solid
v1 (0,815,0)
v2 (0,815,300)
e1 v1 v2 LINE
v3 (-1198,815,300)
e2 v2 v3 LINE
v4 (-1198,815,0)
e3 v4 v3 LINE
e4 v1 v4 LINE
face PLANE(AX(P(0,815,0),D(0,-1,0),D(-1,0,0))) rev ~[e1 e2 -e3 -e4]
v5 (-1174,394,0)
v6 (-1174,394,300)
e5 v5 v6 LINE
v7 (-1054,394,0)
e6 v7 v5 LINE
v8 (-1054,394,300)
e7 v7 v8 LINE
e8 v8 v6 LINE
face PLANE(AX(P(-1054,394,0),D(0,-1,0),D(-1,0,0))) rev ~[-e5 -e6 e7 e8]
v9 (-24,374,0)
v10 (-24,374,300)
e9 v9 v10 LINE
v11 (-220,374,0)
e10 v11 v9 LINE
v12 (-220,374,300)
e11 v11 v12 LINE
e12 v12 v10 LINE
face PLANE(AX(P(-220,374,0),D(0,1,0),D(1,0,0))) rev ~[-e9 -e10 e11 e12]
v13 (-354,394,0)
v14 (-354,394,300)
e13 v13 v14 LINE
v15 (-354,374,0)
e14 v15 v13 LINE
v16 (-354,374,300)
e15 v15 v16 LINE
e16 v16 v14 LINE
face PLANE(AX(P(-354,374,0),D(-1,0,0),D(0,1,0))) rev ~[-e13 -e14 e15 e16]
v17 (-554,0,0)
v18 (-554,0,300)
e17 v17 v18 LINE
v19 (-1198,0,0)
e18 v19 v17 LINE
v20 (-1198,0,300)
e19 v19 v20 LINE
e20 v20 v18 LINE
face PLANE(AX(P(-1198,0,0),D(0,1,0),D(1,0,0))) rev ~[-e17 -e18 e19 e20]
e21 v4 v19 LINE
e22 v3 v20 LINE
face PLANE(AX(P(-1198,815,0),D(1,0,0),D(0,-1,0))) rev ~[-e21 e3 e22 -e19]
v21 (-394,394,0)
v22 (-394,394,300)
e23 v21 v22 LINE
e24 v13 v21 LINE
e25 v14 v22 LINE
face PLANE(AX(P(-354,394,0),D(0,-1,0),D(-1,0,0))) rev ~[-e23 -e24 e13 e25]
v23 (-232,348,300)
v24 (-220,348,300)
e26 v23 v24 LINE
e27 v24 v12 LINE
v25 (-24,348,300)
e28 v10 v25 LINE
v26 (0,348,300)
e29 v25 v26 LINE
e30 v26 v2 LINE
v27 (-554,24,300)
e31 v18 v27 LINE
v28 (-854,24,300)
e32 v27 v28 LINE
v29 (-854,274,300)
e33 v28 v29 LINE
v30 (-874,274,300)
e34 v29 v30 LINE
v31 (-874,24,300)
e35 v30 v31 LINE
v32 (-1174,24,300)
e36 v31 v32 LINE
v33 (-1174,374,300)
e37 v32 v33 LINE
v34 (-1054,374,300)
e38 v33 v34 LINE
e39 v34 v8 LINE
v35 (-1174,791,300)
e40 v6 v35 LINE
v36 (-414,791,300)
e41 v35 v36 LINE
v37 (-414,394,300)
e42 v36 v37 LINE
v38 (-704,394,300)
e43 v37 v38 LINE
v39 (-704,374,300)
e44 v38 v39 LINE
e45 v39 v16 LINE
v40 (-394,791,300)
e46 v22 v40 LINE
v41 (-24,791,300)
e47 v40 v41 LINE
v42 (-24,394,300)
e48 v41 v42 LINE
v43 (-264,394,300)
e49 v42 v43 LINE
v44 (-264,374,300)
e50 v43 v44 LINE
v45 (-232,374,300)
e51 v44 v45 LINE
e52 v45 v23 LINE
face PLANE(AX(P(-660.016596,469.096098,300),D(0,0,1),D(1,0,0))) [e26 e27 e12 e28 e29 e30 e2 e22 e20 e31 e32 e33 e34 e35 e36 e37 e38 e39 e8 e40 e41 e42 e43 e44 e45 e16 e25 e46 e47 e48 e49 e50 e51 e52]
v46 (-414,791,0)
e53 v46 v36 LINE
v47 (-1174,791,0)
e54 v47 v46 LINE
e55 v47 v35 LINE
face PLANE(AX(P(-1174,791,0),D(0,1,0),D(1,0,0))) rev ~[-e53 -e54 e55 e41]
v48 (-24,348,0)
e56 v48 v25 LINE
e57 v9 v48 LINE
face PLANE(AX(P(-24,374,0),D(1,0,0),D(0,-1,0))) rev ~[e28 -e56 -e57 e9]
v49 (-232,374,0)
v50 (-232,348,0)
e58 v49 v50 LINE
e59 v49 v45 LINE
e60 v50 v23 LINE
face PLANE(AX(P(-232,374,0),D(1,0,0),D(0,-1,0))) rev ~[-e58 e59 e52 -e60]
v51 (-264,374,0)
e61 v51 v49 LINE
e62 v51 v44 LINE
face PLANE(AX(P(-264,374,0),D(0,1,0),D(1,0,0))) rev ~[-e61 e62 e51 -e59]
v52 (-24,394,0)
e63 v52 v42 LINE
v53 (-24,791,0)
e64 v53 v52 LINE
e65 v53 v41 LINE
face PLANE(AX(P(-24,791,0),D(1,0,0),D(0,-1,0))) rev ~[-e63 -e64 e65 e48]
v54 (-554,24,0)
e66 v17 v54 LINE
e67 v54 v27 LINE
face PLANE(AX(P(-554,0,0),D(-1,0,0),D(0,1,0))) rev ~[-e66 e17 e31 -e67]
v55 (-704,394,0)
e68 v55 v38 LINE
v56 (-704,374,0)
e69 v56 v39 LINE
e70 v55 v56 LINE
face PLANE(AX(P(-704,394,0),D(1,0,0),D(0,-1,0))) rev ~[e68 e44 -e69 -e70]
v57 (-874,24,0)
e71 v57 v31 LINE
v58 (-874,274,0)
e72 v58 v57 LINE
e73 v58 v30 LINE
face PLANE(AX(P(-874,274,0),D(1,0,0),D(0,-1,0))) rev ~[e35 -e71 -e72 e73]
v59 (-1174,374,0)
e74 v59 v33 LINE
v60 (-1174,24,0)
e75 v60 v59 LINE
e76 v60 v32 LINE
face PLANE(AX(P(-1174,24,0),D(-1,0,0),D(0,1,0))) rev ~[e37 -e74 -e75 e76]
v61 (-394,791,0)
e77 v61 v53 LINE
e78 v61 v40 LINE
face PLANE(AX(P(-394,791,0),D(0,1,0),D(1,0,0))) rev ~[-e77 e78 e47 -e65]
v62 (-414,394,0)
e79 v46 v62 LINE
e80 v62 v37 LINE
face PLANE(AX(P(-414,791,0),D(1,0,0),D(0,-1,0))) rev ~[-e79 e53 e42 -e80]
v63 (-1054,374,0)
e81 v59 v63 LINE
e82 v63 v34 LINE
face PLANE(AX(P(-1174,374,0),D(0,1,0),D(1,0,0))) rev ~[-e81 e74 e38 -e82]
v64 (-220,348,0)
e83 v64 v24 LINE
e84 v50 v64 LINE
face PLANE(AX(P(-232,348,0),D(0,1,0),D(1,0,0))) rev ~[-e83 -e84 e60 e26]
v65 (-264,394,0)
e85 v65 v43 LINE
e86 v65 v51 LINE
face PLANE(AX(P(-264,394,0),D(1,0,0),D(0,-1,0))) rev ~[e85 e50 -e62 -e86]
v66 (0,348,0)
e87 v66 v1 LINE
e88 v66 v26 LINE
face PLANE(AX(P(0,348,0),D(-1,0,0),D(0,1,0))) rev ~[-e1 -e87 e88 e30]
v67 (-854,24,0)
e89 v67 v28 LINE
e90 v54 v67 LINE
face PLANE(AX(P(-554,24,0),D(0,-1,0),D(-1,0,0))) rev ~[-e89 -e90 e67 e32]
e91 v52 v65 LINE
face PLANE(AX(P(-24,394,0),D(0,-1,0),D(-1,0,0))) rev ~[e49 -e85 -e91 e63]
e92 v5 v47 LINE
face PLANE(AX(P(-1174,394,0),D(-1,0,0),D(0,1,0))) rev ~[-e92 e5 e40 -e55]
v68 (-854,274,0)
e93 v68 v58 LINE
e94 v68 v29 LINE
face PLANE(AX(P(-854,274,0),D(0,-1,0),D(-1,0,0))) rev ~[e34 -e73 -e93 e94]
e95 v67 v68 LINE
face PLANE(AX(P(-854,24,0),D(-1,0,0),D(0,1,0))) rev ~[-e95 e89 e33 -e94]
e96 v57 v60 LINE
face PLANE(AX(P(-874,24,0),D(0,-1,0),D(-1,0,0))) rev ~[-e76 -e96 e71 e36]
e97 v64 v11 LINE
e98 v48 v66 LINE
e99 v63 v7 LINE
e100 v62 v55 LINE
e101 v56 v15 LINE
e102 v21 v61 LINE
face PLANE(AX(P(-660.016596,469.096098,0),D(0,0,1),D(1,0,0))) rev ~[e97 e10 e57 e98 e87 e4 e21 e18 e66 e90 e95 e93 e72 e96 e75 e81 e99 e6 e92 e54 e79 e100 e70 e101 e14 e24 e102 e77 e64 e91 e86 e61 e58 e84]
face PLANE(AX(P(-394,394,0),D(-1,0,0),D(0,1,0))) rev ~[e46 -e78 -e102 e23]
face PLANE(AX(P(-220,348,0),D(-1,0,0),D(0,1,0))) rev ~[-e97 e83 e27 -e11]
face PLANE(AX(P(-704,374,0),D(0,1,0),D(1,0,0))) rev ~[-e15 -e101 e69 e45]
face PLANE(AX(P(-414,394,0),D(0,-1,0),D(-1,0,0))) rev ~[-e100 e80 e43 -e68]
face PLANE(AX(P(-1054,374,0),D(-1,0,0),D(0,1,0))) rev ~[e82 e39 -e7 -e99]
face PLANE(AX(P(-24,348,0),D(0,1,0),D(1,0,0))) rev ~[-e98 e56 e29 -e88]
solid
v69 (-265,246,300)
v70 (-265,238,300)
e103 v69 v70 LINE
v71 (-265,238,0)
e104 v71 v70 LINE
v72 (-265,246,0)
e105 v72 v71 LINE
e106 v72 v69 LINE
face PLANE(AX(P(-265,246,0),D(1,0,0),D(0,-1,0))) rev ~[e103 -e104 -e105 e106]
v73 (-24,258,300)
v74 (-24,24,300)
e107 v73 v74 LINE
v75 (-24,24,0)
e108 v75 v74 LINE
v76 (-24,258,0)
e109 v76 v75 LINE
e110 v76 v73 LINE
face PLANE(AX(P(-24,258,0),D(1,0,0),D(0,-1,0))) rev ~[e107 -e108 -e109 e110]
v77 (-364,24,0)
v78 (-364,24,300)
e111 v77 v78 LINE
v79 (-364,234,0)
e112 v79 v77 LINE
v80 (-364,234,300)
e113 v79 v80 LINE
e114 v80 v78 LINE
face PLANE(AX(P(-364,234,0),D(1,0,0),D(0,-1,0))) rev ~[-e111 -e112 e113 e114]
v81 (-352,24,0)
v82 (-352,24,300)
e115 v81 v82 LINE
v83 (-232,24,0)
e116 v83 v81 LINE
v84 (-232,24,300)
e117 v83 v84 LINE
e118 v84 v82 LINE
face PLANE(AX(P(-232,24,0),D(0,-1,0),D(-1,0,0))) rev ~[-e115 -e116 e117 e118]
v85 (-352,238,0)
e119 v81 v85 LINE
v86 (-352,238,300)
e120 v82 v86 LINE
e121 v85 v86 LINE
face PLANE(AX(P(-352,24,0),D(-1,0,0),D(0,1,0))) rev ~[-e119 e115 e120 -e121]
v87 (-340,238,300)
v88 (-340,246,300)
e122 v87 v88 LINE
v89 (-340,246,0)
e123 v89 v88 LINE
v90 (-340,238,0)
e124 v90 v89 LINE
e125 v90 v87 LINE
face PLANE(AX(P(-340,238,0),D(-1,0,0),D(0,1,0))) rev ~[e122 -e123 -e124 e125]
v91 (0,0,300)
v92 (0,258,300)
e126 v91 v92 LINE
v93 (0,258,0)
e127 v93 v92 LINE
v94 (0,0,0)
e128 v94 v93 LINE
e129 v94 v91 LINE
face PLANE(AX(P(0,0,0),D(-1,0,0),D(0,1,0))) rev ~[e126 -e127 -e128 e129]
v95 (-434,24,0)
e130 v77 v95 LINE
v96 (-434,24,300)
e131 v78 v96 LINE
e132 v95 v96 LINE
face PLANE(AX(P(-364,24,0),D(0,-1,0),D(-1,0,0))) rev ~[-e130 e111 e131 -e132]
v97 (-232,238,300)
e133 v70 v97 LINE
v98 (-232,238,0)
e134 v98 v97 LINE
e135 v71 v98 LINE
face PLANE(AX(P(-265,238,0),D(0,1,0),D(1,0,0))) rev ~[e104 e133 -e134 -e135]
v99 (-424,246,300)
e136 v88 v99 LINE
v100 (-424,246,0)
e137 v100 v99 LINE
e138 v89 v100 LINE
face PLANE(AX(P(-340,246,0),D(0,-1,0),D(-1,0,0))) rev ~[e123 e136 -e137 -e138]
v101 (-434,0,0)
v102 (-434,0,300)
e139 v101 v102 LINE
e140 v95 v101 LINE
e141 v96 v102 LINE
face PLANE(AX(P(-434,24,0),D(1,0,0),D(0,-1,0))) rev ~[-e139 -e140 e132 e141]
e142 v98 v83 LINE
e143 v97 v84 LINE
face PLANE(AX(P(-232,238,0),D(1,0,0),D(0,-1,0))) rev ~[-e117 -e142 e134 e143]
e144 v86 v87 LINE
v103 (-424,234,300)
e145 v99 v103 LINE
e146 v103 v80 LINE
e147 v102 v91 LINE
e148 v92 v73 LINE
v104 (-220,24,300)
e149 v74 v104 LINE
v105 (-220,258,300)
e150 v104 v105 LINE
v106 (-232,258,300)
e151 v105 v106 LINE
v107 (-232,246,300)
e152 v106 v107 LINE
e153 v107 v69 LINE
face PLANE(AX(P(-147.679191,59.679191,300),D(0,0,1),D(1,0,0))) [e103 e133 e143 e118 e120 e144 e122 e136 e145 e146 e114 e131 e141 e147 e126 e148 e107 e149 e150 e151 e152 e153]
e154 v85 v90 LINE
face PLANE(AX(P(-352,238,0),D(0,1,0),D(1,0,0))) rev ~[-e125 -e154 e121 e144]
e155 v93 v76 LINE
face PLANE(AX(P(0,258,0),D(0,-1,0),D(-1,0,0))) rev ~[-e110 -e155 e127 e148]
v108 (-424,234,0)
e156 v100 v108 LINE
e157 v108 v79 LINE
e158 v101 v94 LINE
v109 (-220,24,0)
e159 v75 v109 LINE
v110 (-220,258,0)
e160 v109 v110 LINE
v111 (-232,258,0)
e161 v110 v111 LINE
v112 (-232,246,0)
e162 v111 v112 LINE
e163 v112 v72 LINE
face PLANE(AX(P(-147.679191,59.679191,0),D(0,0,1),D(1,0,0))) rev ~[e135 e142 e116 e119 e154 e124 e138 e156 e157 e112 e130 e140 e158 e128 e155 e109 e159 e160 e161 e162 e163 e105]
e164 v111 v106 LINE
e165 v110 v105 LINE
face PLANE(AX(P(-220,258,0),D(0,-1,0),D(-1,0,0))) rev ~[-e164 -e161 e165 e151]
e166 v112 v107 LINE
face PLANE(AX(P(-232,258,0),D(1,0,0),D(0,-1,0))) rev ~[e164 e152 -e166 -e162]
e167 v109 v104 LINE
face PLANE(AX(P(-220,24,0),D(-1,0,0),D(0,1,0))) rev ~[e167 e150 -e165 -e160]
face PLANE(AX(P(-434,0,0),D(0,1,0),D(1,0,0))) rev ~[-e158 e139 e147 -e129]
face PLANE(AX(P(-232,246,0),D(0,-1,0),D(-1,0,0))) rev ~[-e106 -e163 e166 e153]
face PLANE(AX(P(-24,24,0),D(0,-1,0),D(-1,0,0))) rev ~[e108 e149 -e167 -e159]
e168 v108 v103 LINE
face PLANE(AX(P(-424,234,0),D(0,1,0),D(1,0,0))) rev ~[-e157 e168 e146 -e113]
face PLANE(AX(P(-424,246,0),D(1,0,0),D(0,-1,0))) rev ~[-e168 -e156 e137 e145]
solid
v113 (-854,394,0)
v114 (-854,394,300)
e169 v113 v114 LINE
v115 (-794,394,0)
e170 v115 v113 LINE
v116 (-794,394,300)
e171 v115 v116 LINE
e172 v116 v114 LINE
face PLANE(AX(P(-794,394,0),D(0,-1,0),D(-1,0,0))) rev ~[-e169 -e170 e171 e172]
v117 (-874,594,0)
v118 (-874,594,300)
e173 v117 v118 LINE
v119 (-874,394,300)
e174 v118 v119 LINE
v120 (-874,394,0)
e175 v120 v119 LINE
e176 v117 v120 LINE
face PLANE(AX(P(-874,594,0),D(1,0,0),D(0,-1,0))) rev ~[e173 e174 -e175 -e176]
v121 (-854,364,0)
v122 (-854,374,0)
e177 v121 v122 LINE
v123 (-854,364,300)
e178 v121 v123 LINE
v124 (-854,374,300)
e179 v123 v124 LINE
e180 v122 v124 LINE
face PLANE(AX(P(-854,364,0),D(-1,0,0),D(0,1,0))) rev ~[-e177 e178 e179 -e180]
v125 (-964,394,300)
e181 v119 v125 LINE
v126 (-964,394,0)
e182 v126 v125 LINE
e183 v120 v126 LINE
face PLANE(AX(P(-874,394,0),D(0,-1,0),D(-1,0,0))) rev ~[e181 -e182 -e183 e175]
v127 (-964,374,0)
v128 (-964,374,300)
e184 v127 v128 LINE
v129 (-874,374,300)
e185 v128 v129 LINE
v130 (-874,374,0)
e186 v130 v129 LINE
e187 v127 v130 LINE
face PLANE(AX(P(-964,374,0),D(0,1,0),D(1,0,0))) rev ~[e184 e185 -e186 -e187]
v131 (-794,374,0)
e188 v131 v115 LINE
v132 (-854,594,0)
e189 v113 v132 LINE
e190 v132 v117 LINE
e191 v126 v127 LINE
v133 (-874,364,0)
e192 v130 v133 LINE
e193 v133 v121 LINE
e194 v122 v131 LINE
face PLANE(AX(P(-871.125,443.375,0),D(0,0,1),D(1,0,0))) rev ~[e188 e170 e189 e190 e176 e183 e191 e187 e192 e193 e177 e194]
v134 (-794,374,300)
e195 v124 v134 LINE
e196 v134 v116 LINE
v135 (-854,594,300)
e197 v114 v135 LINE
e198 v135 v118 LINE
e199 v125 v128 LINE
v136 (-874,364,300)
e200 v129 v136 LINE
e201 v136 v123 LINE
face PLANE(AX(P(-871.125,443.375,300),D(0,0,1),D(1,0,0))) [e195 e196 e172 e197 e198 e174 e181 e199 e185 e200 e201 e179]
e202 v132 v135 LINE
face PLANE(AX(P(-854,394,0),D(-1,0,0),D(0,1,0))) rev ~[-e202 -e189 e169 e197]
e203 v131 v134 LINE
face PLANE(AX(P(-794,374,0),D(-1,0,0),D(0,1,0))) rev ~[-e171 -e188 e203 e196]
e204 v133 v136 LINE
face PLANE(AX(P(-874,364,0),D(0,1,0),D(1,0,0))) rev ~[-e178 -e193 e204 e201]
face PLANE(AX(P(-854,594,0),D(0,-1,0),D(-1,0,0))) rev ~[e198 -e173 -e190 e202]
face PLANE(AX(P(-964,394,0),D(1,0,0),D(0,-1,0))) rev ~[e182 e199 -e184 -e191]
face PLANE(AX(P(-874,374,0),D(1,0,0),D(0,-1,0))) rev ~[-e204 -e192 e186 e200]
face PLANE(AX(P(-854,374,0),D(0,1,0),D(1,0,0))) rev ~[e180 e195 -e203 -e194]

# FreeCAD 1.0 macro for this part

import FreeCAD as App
import Part
import Sketcher
from FreeCAD import Vector


def add_polygon(sketch, points):
    """Adds a closed chain of lines whose ends are joined by coincident constraints."""
    first, n = sketch.GeometryCount, len(points)
    for a, b in zip(points, points[1:] + points[:1]):
        sketch.addGeometry(Part.LineSegment(App.Vector(*a, 0), App.Vector(*b, 0)), False)
    for i in range(n):
        sketch.addConstraint(Sketcher.Constraint("Coincident", first + i, 2, first + (i + 1) % n, 1))

doc = App.newDocument("Part")
body = doc.addObject("PartDesign::Body", "Body")
body.AllowCompound = True

# Sketch on XY plane
sketch1 = body.newObject("Sketcher::SketchObject", "Sketch")
sketch1.AttachmentSupport = (doc.getObject("XY_Plane"), [""])
sketch1.MapMode = "FlatFace"
add_polygon(sketch1, [(-434, 0), (0, 0), (0, 258), (-24, 258), (-24, 24), (-220, 24), (-220, 258), (-232, 258), (-232, 246), (-265, 246), (-265, 238), (-232, 238), (-232, 24), (-352, 24), (-352, 238), (-340, 238), (-340, 246), (-424, 246), (-424, 234), (-364, 234), (-364, 24), (-434, 24)])  # lines 0-21
add_polygon(sketch1, [(0, 348), (0, 815), (-1198, 815), (-1198, 0), (-554, 0), (-554, 24), (-854, 24), (-854, 274), (-874, 274), (-874, 24), (-1174, 24), (-1174, 374), (-1054, 374), (-1054, 394), (-1174, 394), (-1174, 791), (-414, 791), (-414, 394), (-704, 394), (-704, 374), (-354, 374), (-354, 394), (-394, 394), (-394, 791), (-24, 791), (-24, 394), (-264, 394), (-264, 374), (-232, 374), (-232, 348), (-220, 348), (-220, 374), (-24, 374), (-24, 348)])  # lines 22-55
add_polygon(sketch1, [(-874, 394), (-964, 394), (-964, 374), (-874, 374), (-874, 364), (-854, 364), (-854, 374), (-794, 374), (-794, 394), (-854, 394), (-854, 594), (-874, 594)])  # lines 56-67
sketch1.addConstraint([
    Sketcher.Constraint("Horizontal", 0),
    Sketcher.Constraint("Vertical", 1),
    Sketcher.Constraint("Horizontal", 2),
    Sketcher.Constraint("Vertical", 3),
    Sketcher.Constraint("Horizontal", 4),
    Sketcher.Constraint("Vertical", 5),
    Sketcher.Constraint("Horizontal", 6),
    Sketcher.Constraint("Vertical", 7),
    Sketcher.Constraint("Horizontal", 8),
    Sketcher.Constraint("Vertical", 9),
    Sketcher.Constraint("Horizontal", 10),
    Sketcher.Constraint("Vertical", 11),
    Sketcher.Constraint("Horizontal", 12),
    Sketcher.Constraint("Vertical", 13),
    Sketcher.Constraint("Horizontal", 14),
    Sketcher.Constraint("Vertical", 15),
    Sketcher.Constraint("Horizontal", 16),
    Sketcher.Constraint("Vertical", 17),
    Sketcher.Constraint("Horizontal", 18),
    Sketcher.Constraint("Vertical", 19),
    Sketcher.Constraint("Horizontal", 20),
    Sketcher.Constraint("Vertical", 21),
    Sketcher.Constraint("Vertical", 22),
    Sketcher.Constraint("Horizontal", 23),
    Sketcher.Constraint("Vertical", 24),
    Sketcher.Constraint("Horizontal", 25),
    Sketcher.Constraint("Vertical", 26),
    Sketcher.Constraint("Horizontal", 27),
    Sketcher.Constraint("Vertical", 28),
    Sketcher.Constraint("Horizontal", 29),
    Sketcher.Constraint("Vertical", 30),
    Sketcher.Constraint("Horizontal", 31),
    Sketcher.Constraint("Vertical", 32),
    Sketcher.Constraint("Horizontal", 33),
    Sketcher.Constraint("Vertical", 34),
    Sketcher.Constraint("Horizontal", 35),
    Sketcher.Constraint("Vertical", 36),
    Sketcher.Constraint("Horizontal", 37),
    Sketcher.Constraint("Vertical", 38),
    Sketcher.Constraint("Horizontal", 39),
    Sketcher.Constraint("Vertical", 40),
    Sketcher.Constraint("Horizontal", 41),
    Sketcher.Constraint("Vertical", 42),
    Sketcher.Constraint("Horizontal", 43),
    Sketcher.Constraint("Vertical", 44),
    Sketcher.Constraint("Horizontal", 45),
    Sketcher.Constraint("Vertical", 46),
    Sketcher.Constraint("Horizontal", 47),
    Sketcher.Constraint("Vertical", 48),
    Sketcher.Constraint("Horizontal", 49),
    Sketcher.Constraint("Vertical", 50),
    Sketcher.Constraint("Horizontal", 51),
    Sketcher.Constraint("Vertical", 52),
    Sketcher.Constraint("Horizontal", 53),
    Sketcher.Constraint("Vertical", 54),
    Sketcher.Constraint("Horizontal", 55),
    Sketcher.Constraint("Horizontal", 56),
    Sketcher.Constraint("Vertical", 57),
    Sketcher.Constraint("Horizontal", 58),
    Sketcher.Constraint("Vertical", 59),
    Sketcher.Constraint("Horizontal", 60),
    Sketcher.Constraint("Vertical", 61),
    Sketcher.Constraint("Horizontal", 62),
    Sketcher.Constraint("Vertical", 63),
    Sketcher.Constraint("Horizontal", 64),
    Sketcher.Constraint("Vertical", 65),
    Sketcher.Constraint("Horizontal", 66),
    Sketcher.Constraint("Vertical", 67),
    Sketcher.Constraint("Coincident", 0, 2, -1, 1),
    Sketcher.Constraint("PointOnObject", 22, 2, -2),
    Sketcher.Constraint("PointOnObject", 24, 2, -1),
    Sketcher.Constraint("Horizontal", 2, 2, 5, 2),
    Sketcher.Constraint("Horizontal", 4, 2, 11, 2),
    Sketcher.Constraint("Horizontal", 10, 2, 13, 2),
    Sketcher.Constraint("Horizontal", 8, 2, 15, 2),
    Sketcher.Constraint("Horizontal", 12, 2, 19, 2),
    Sketcher.Constraint("Horizontal", 20, 2, 26, 2),
    Sketcher.Constraint("Horizontal", 27, 2, 30, 2),
    Sketcher.Constraint("Horizontal", 35, 2, 38, 2),
    Sketcher.Constraint("Horizontal", 33, 2, 40, 2),
    Sketcher.Constraint("Horizontal", 39, 2, 42, 2),
    Sketcher.Constraint("Horizontal", 37, 2, 44, 2),
    Sketcher.Constraint("Horizontal", 43, 2, 46, 2),
    Sketcher.Constraint("Horizontal", 41, 2, 48, 2),
    Sketcher.Constraint("Horizontal", 49, 2, 52, 2),
    Sketcher.Constraint("Horizontal", 51, 2, 54, 2),
    Sketcher.Constraint("Horizontal", 47, 2, 56, 2),
    Sketcher.Constraint("Horizontal", 53, 2, 57, 2),
    Sketcher.Constraint("Horizontal", 58, 2, 61, 2),
    Sketcher.Constraint("Horizontal", 56, 2, 63, 2),
    Sketcher.Constraint("Vertical", 7, 2, 10, 2),
    Sketcher.Constraint("Vertical", 32, 2, 35, 2),
    Sketcher.Constraint("Vertical", 3, 2, 45, 2),
    Sketcher.Constraint("Vertical", 11, 2, 49, 2),
    Sketcher.Constraint("Vertical", 5, 2, 51, 2),
    Sketcher.Constraint("Vertical", 46, 2, 53, 2),
    Sketcher.Constraint("Vertical", 30, 2, 58, 2),
    Sketcher.Constraint("Vertical", 28, 2, 60, 2),
    Sketcher.Constraint("Vertical", 61, 2, 64, 2),
    Sketcher.Constraint("Vertical", 59, 2, 66, 2),
    Sketcher.Constraint("Equal", 6, 14),
    Sketcher.Constraint("Equal", 27, 31),
    Sketcher.Constraint("Equal", 12, 33),
    Sketcher.Constraint("Equal", 18, 62),
    Sketcher.Constraint("Equal", 51, 7),
    Sketcher.Constraint("Equal", 7, 17),
    Sketcher.Constraint("Equal", 55, 21),
    Sketcher.Constraint("Equal", 41, 32),
    Sketcher.Constraint("Equal", 66, 34),
    Sketcher.Constraint("DistanceX", 0, 1, 0, 2, 434.0),
    Sketcher.Constraint("DistanceX", 2, 2, 2, 1, 24.0),
    Sketcher.Constraint("DistanceX", 4, 2, 4, 1, 196.0),
    Sketcher.Constraint("DistanceX", 6, 2, 6, 1, 12.0),
    Sketcher.Constraint("DistanceX", 8, 2, 8, 1, 33.0),
    Sketcher.Constraint("DistanceX", 12, 2, 12, 1, 120.0),
    Sketcher.Constraint("DistanceX", 16, 2, 16, 1, 84.0),
    Sketcher.Constraint("DistanceX", 18, 1, 18, 2, 60.0),
    Sketcher.Constraint("DistanceX", 23, 2, 23, 1, 1198.0),
    Sketcher.Constraint("DistanceX", 25, 1, 25, 2, 644.0),
    Sketcher.Constraint("DistanceX", 27, 2, 27, 1, 300.0),
    Sketcher.Constraint("DistanceX", 29, 2, 29, 1, 20.0),
    Sketcher.Constraint("DistanceX", 37, 1, 37, 2, 760.0),
    Sketcher.Constraint("DistanceX", 39, 2, 39, 1, 290.0),
    Sketcher.Constraint("DistanceX", 41, 1, 41, 2, 350.0),
    Sketcher.Constraint("DistanceX", 43, 2, 43, 1, 40.0),
    Sketcher.Constraint("DistanceX", 47, 2, 47, 1, 240.0),
    Sketcher.Constraint("DistanceX", 56, 2, 56, 1, 90.0),
    Sketcher.Constraint("DistanceY", 1, 1, 1, 2, 258.0),
    Sketcher.Constraint("DistanceY", 9, 2, 9, 1, 8.0),
    Sketcher.Constraint("DistanceY", 22, 1, 22, 2, 467.0),
    Sketcher.Constraint("DistanceY", 24, 2, 24, 1, 815.0),
    Sketcher.Constraint("DistanceY", 28, 1, 28, 2, 250.0),
    Sketcher.Constraint("DistanceY", 36, 1, 36, 2, 397.0),
    Sketcher.Constraint("DistanceY", 59, 2, 59, 1, 10.0),
    Sketcher.Constraint("DistanceY", 65, 1, 65, 2, 200.0),
])
pad1 = body.newObject("PartDesign::Pad", "Pad")
pad1.Profile = sketch1
pad1.Length = 300

doc.recompute()
